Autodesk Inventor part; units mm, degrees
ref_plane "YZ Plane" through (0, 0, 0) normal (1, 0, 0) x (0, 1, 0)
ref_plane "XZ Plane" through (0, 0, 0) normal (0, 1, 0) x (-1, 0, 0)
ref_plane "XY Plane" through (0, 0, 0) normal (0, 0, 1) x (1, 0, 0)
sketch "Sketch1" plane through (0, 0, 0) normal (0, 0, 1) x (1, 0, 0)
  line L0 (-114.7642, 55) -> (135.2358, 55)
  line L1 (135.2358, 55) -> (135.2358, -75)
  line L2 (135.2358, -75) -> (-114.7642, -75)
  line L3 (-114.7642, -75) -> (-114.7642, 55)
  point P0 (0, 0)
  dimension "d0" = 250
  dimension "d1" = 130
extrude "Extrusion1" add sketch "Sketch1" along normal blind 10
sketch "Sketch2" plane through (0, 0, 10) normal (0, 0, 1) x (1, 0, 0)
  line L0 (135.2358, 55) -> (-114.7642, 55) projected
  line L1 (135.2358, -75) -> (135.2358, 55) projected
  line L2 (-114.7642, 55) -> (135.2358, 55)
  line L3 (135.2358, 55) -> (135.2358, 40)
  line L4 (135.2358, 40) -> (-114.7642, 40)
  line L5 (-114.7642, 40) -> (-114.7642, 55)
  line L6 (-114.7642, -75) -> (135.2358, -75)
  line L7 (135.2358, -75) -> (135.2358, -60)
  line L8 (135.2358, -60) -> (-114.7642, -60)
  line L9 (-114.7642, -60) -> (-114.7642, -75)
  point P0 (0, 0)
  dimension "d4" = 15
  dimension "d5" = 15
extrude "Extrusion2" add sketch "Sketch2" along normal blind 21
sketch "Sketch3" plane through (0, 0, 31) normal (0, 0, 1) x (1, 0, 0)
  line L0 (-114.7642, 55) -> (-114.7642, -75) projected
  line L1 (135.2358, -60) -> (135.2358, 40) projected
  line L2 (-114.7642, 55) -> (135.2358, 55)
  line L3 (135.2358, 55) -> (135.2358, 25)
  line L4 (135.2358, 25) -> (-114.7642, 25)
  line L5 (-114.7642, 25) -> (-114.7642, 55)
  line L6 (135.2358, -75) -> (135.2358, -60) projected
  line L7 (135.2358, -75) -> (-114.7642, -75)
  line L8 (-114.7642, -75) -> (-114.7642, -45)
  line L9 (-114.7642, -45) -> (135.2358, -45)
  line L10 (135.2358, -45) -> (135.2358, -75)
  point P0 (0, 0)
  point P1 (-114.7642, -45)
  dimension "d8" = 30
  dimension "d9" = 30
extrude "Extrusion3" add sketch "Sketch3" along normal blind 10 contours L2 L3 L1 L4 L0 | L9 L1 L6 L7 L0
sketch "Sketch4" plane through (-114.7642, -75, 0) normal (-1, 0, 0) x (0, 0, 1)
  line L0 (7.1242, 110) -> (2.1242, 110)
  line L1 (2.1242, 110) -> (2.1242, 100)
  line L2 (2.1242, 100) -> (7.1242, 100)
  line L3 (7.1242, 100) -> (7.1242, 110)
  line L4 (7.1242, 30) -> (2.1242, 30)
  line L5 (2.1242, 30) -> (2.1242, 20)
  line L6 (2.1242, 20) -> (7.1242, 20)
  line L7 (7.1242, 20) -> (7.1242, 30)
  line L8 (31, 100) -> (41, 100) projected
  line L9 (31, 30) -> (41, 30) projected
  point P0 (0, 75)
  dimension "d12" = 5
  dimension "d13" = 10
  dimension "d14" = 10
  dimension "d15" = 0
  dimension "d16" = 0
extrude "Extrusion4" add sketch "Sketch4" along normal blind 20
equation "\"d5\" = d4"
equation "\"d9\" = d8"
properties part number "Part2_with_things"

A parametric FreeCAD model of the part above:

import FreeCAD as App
import Part
import Sketcher

V = App.Vector
Q = App.Units.Quantity

doc = App.newDocument("Part")
body = doc.addObject("PartDesign::Body", "Body")

# Sketch on XY plane
sketch1 = body.newObject("Sketcher::SketchObject", "Sketch")
sketch1.AttachmentSupport = (doc.getObject("XY_Plane"), [""])
sketch1.MapMode = "FlatFace"
sketch1.addGeometry([
    Part.LineSegment(V(135, 55, 0), V(-115, 55, 0)),
    Part.LineSegment(V(-115, 55, 0), V(-115, -75, 0)),
    Part.LineSegment(V(-115, -75, 0), V(135, -75, 0)),
    Part.LineSegment(V(135, -75, 0), V(135, 55, 0)),
], False)
sketch1.addConstraint([
    Sketcher.Constraint("Coincident", 0, 2, 1, 1),
    Sketcher.Constraint("Coincident", 1, 2, 2, 1),
    Sketcher.Constraint("Coincident", 2, 2, 3, 1),
    Sketcher.Constraint("Coincident", 3, 2, 0, 1),
    Sketcher.Constraint("Horizontal", 0),
    Sketcher.Constraint("Vertical", 1),
    Sketcher.Constraint("Horizontal", 2),
    Sketcher.Constraint("Vertical", 3),
    Sketcher.Constraint("DistanceX", 0, 2, 0, 1, Q("250 mm")),
    Sketcher.Constraint("DistanceY", 1, 2, 1, 1, Q("130 mm")),
    Sketcher.Constraint("DistanceY", -1, 1, 0, 2, Q("55 mm")),
    Sketcher.Constraint("DistanceX", 0, 2, -1, 1, Q("114.7642 mm")),
])
pad1 = body.newObject("PartDesign::Pad", "Pad")
pad1.Profile = sketch1
pad1.Length = 10

# Sketch on XY plane
sketch2 = body.newObject("Sketcher::SketchObject", "Sketch001")
sketch2.AttachmentSupport = (doc.getObject("XY_Plane"), [""])
sketch2.MapMode = "FlatFace"
sketch2.AttachmentOffset = App.Placement(V(0, 0, 10), App.Rotation())
sketch2.addGeometry([
    Part.LineSegment(V(135, 40, 0), V(135, 55, 0)),  # 0
    Part.LineSegment(V(135, 55, 0), V(-115, 55, 0)),  # 1
    Part.LineSegment(V(-115, 55, 0), V(-115, 40, 0)),  # 2
    Part.LineSegment(V(-115, 40, 0), V(135, 40, 0)),  # 3
    Part.LineSegment(V(135, -75, 0), V(135, -60, 0)),  # 4
    Part.LineSegment(V(135, -60, 0), V(-115, -60, 0)),  # 5
    Part.LineSegment(V(-115, -60, 0), V(-115, -75, 0)),  # 6
    Part.LineSegment(V(-115, -75, 0), V(135, -75, 0)),  # 7
], False)
sketch2.addConstraint([
    Sketcher.Constraint("Coincident", 0, 2, 1, 1),
    Sketcher.Constraint("Coincident", 1, 2, 2, 1),
    Sketcher.Constraint("Coincident", 2, 2, 3, 1),
    Sketcher.Constraint("Coincident", 3, 2, 0, 1),
    Sketcher.Constraint("Coincident", 4, 2, 5, 1),
    Sketcher.Constraint("Coincident", 5, 2, 6, 1),
    Sketcher.Constraint("Coincident", 6, 2, 7, 1),
    Sketcher.Constraint("Coincident", 7, 2, 4, 1),
    Sketcher.Constraint("Vertical", 0),
    Sketcher.Constraint("Horizontal", 1),
    Sketcher.Constraint("Vertical", 2),
    Sketcher.Constraint("Horizontal", 3),
    Sketcher.Constraint("Vertical", 4),
    Sketcher.Constraint("Horizontal", 5),
    Sketcher.Constraint("Vertical", 6),
    Sketcher.Constraint("Horizontal", 7),
    Sketcher.Constraint("Vertical", 3, 2, 4, 2),
    Sketcher.Constraint("Vertical", 2, 2, 5, 2),
    Sketcher.Constraint("Equal", 2, 4),
    Sketcher.Constraint("DistanceY", 0, 1, 0, 2, Q("15 mm")),
    Sketcher.Constraint("DistanceX", 1, 2, 1, 1, Q("250 mm")),
    Sketcher.Constraint("DistanceY", -1, 1, 0, 2, Q("55 mm")),
    Sketcher.Constraint("DistanceY", 4, 2, -1, 1, Q("60 mm")),
    Sketcher.Constraint("DistanceX", -1, 1, 0, 2, Q("135.2358 mm")),
])
pad2 = body.newObject("PartDesign::Pad", "Pad001")
pad2.Profile = sketch2
pad2.Length = 21

# Sketch on XY plane
sketch3 = body.newObject("Sketcher::SketchObject", "Sketch002")
sketch3.AttachmentSupport = (doc.getObject("XY_Plane"), [""])
sketch3.MapMode = "FlatFace"
sketch3.AttachmentOffset = App.Placement(V(0, 0, 31), App.Rotation())
sketch3.addGeometry([
    Part.LineSegment(V(135, 55, 0), V(-115, 55, 0)),  # 0
    Part.LineSegment(V(-115, 55, 0), V(-115, 25, 0)),  # 1
    Part.LineSegment(V(-115, 25, 0), V(135, 25, 0)),  # 2
    Part.LineSegment(V(135, 25, 0), V(135, 55, 0)),  # 3
    Part.LineSegment(V(135, -45, 0), V(-115, -45, 0)),  # 4
    Part.LineSegment(V(-115, -45, 0), V(-115, -75, 0)),  # 5
    Part.LineSegment(V(-115, -75, 0), V(135, -75, 0)),  # 6
    Part.LineSegment(V(135, -75, 0), V(135, -45, 0)),  # 7
], False)
sketch3.addConstraint([
    Sketcher.Constraint("Coincident", 0, 2, 1, 1),
    Sketcher.Constraint("Coincident", 1, 2, 2, 1),
    Sketcher.Constraint("Coincident", 2, 2, 3, 1),
    Sketcher.Constraint("Coincident", 3, 2, 0, 1),
    Sketcher.Constraint("Coincident", 4, 2, 5, 1),
    Sketcher.Constraint("Coincident", 5, 2, 6, 1),
    Sketcher.Constraint("Coincident", 6, 2, 7, 1),
    Sketcher.Constraint("Coincident", 7, 2, 4, 1),
    Sketcher.Constraint("Horizontal", 0),
    Sketcher.Constraint("Vertical", 1),
    Sketcher.Constraint("Horizontal", 2),
    Sketcher.Constraint("Vertical", 3),
    Sketcher.Constraint("Horizontal", 4),
    Sketcher.Constraint("Vertical", 5),
    Sketcher.Constraint("Horizontal", 6),
    Sketcher.Constraint("Vertical", 7),
    Sketcher.Constraint("Vertical", 1, 2, 4, 2),
    Sketcher.Constraint("Vertical", 3, 2, 6, 2),
    Sketcher.Constraint("Equal", 3, 5),
    Sketcher.Constraint("DistanceY", 1, 2, 1, 1, Q("30 mm")),
    Sketcher.Constraint("DistanceX", 0, 2, 0, 1, Q("250 mm")),
    Sketcher.Constraint("DistanceY", -1, 1, 0, 2, Q("55 mm")),
    Sketcher.Constraint("DistanceY", 4, 2, -1, 1, Q("45 mm")),
    Sketcher.Constraint("DistanceX", 0, 2, -1, 1, Q("114.7642 mm")),
])
pad3 = body.newObject("PartDesign::Pad", "Pad002")
pad3.Profile = sketch3
pad3.Length = 10

# Sketch on YZ plane
sketch4 = body.newObject("Sketcher::SketchObject", "Sketch003")
sketch4.AttachmentSupport = (doc.getObject("YZ_Plane"), [""])
sketch4.MapMode = "FlatFace"
sketch4.AttachmentOffset = App.Placement(V(0, 0, -114.7642), App.Rotation())
sketch4.addGeometry([
    Part.LineSegment(V(25, 7, 0), V(35, 7, 0)),  # 0
    Part.LineSegment(V(35, 7, 0), V(35, 2, 0)),  # 1
    Part.LineSegment(V(35, 2, 0), V(25, 2, 0)),  # 2
    Part.LineSegment(V(25, 2, 0), V(25, 7, 0)),  # 3
    Part.LineSegment(V(-55, 7, 0), V(-45, 7, 0)),  # 4
    Part.LineSegment(V(-45, 7, 0), V(-45, 2, 0)),  # 5
    Part.LineSegment(V(-45, 2, 0), V(-55, 2, 0)),  # 6
    Part.LineSegment(V(-55, 2, 0), V(-55, 7, 0)),  # 7
], False)
sketch4.addConstraint([
    Sketcher.Constraint("Coincident", 0, 2, 1, 1),
    Sketcher.Constraint("Coincident", 1, 2, 2, 1),
    Sketcher.Constraint("Coincident", 2, 2, 3, 1),
    Sketcher.Constraint("Coincident", 3, 2, 0, 1),
    Sketcher.Constraint("Coincident", 4, 2, 5, 1),
    Sketcher.Constraint("Coincident", 5, 2, 6, 1),
    Sketcher.Constraint("Coincident", 6, 2, 7, 1),
    Sketcher.Constraint("Coincident", 7, 2, 4, 1),
    Sketcher.Constraint("Horizontal", 0),
    Sketcher.Constraint("Vertical", 1),
    Sketcher.Constraint("Horizontal", 2),
    Sketcher.Constraint("Vertical", 3),
    Sketcher.Constraint("Horizontal", 4),
    Sketcher.Constraint("Vertical", 5),
    Sketcher.Constraint("Horizontal", 6),
    Sketcher.Constraint("Vertical", 7),
    Sketcher.Constraint("Horizontal", 3, 2, 4, 2),
    Sketcher.Constraint("Horizontal", 2, 2, 5, 2),
    Sketcher.Constraint("Equal", 2, 4),
    Sketcher.Constraint("DistanceX", 0, 1, 0, 2, Q("10 mm")),
    Sketcher.Constraint("DistanceY", 1, 2, 1, 1, Q("5 mm")),
    Sketcher.Constraint("DistanceX", -1, 1, 0, 2, Q("35 mm")),
    Sketcher.Constraint("DistanceX", 4, 2, -1, 1, Q("45 mm")),
    Sketcher.Constraint("DistanceY", -1, 1, 0, 2, Q("7.1242 mm")),
])
pad4 = body.newObject("PartDesign::Pad", "Pad003")
pad4.Profile = sketch4
pad4.Length = 20
pad4.Reversed = True

doc.recompute()
